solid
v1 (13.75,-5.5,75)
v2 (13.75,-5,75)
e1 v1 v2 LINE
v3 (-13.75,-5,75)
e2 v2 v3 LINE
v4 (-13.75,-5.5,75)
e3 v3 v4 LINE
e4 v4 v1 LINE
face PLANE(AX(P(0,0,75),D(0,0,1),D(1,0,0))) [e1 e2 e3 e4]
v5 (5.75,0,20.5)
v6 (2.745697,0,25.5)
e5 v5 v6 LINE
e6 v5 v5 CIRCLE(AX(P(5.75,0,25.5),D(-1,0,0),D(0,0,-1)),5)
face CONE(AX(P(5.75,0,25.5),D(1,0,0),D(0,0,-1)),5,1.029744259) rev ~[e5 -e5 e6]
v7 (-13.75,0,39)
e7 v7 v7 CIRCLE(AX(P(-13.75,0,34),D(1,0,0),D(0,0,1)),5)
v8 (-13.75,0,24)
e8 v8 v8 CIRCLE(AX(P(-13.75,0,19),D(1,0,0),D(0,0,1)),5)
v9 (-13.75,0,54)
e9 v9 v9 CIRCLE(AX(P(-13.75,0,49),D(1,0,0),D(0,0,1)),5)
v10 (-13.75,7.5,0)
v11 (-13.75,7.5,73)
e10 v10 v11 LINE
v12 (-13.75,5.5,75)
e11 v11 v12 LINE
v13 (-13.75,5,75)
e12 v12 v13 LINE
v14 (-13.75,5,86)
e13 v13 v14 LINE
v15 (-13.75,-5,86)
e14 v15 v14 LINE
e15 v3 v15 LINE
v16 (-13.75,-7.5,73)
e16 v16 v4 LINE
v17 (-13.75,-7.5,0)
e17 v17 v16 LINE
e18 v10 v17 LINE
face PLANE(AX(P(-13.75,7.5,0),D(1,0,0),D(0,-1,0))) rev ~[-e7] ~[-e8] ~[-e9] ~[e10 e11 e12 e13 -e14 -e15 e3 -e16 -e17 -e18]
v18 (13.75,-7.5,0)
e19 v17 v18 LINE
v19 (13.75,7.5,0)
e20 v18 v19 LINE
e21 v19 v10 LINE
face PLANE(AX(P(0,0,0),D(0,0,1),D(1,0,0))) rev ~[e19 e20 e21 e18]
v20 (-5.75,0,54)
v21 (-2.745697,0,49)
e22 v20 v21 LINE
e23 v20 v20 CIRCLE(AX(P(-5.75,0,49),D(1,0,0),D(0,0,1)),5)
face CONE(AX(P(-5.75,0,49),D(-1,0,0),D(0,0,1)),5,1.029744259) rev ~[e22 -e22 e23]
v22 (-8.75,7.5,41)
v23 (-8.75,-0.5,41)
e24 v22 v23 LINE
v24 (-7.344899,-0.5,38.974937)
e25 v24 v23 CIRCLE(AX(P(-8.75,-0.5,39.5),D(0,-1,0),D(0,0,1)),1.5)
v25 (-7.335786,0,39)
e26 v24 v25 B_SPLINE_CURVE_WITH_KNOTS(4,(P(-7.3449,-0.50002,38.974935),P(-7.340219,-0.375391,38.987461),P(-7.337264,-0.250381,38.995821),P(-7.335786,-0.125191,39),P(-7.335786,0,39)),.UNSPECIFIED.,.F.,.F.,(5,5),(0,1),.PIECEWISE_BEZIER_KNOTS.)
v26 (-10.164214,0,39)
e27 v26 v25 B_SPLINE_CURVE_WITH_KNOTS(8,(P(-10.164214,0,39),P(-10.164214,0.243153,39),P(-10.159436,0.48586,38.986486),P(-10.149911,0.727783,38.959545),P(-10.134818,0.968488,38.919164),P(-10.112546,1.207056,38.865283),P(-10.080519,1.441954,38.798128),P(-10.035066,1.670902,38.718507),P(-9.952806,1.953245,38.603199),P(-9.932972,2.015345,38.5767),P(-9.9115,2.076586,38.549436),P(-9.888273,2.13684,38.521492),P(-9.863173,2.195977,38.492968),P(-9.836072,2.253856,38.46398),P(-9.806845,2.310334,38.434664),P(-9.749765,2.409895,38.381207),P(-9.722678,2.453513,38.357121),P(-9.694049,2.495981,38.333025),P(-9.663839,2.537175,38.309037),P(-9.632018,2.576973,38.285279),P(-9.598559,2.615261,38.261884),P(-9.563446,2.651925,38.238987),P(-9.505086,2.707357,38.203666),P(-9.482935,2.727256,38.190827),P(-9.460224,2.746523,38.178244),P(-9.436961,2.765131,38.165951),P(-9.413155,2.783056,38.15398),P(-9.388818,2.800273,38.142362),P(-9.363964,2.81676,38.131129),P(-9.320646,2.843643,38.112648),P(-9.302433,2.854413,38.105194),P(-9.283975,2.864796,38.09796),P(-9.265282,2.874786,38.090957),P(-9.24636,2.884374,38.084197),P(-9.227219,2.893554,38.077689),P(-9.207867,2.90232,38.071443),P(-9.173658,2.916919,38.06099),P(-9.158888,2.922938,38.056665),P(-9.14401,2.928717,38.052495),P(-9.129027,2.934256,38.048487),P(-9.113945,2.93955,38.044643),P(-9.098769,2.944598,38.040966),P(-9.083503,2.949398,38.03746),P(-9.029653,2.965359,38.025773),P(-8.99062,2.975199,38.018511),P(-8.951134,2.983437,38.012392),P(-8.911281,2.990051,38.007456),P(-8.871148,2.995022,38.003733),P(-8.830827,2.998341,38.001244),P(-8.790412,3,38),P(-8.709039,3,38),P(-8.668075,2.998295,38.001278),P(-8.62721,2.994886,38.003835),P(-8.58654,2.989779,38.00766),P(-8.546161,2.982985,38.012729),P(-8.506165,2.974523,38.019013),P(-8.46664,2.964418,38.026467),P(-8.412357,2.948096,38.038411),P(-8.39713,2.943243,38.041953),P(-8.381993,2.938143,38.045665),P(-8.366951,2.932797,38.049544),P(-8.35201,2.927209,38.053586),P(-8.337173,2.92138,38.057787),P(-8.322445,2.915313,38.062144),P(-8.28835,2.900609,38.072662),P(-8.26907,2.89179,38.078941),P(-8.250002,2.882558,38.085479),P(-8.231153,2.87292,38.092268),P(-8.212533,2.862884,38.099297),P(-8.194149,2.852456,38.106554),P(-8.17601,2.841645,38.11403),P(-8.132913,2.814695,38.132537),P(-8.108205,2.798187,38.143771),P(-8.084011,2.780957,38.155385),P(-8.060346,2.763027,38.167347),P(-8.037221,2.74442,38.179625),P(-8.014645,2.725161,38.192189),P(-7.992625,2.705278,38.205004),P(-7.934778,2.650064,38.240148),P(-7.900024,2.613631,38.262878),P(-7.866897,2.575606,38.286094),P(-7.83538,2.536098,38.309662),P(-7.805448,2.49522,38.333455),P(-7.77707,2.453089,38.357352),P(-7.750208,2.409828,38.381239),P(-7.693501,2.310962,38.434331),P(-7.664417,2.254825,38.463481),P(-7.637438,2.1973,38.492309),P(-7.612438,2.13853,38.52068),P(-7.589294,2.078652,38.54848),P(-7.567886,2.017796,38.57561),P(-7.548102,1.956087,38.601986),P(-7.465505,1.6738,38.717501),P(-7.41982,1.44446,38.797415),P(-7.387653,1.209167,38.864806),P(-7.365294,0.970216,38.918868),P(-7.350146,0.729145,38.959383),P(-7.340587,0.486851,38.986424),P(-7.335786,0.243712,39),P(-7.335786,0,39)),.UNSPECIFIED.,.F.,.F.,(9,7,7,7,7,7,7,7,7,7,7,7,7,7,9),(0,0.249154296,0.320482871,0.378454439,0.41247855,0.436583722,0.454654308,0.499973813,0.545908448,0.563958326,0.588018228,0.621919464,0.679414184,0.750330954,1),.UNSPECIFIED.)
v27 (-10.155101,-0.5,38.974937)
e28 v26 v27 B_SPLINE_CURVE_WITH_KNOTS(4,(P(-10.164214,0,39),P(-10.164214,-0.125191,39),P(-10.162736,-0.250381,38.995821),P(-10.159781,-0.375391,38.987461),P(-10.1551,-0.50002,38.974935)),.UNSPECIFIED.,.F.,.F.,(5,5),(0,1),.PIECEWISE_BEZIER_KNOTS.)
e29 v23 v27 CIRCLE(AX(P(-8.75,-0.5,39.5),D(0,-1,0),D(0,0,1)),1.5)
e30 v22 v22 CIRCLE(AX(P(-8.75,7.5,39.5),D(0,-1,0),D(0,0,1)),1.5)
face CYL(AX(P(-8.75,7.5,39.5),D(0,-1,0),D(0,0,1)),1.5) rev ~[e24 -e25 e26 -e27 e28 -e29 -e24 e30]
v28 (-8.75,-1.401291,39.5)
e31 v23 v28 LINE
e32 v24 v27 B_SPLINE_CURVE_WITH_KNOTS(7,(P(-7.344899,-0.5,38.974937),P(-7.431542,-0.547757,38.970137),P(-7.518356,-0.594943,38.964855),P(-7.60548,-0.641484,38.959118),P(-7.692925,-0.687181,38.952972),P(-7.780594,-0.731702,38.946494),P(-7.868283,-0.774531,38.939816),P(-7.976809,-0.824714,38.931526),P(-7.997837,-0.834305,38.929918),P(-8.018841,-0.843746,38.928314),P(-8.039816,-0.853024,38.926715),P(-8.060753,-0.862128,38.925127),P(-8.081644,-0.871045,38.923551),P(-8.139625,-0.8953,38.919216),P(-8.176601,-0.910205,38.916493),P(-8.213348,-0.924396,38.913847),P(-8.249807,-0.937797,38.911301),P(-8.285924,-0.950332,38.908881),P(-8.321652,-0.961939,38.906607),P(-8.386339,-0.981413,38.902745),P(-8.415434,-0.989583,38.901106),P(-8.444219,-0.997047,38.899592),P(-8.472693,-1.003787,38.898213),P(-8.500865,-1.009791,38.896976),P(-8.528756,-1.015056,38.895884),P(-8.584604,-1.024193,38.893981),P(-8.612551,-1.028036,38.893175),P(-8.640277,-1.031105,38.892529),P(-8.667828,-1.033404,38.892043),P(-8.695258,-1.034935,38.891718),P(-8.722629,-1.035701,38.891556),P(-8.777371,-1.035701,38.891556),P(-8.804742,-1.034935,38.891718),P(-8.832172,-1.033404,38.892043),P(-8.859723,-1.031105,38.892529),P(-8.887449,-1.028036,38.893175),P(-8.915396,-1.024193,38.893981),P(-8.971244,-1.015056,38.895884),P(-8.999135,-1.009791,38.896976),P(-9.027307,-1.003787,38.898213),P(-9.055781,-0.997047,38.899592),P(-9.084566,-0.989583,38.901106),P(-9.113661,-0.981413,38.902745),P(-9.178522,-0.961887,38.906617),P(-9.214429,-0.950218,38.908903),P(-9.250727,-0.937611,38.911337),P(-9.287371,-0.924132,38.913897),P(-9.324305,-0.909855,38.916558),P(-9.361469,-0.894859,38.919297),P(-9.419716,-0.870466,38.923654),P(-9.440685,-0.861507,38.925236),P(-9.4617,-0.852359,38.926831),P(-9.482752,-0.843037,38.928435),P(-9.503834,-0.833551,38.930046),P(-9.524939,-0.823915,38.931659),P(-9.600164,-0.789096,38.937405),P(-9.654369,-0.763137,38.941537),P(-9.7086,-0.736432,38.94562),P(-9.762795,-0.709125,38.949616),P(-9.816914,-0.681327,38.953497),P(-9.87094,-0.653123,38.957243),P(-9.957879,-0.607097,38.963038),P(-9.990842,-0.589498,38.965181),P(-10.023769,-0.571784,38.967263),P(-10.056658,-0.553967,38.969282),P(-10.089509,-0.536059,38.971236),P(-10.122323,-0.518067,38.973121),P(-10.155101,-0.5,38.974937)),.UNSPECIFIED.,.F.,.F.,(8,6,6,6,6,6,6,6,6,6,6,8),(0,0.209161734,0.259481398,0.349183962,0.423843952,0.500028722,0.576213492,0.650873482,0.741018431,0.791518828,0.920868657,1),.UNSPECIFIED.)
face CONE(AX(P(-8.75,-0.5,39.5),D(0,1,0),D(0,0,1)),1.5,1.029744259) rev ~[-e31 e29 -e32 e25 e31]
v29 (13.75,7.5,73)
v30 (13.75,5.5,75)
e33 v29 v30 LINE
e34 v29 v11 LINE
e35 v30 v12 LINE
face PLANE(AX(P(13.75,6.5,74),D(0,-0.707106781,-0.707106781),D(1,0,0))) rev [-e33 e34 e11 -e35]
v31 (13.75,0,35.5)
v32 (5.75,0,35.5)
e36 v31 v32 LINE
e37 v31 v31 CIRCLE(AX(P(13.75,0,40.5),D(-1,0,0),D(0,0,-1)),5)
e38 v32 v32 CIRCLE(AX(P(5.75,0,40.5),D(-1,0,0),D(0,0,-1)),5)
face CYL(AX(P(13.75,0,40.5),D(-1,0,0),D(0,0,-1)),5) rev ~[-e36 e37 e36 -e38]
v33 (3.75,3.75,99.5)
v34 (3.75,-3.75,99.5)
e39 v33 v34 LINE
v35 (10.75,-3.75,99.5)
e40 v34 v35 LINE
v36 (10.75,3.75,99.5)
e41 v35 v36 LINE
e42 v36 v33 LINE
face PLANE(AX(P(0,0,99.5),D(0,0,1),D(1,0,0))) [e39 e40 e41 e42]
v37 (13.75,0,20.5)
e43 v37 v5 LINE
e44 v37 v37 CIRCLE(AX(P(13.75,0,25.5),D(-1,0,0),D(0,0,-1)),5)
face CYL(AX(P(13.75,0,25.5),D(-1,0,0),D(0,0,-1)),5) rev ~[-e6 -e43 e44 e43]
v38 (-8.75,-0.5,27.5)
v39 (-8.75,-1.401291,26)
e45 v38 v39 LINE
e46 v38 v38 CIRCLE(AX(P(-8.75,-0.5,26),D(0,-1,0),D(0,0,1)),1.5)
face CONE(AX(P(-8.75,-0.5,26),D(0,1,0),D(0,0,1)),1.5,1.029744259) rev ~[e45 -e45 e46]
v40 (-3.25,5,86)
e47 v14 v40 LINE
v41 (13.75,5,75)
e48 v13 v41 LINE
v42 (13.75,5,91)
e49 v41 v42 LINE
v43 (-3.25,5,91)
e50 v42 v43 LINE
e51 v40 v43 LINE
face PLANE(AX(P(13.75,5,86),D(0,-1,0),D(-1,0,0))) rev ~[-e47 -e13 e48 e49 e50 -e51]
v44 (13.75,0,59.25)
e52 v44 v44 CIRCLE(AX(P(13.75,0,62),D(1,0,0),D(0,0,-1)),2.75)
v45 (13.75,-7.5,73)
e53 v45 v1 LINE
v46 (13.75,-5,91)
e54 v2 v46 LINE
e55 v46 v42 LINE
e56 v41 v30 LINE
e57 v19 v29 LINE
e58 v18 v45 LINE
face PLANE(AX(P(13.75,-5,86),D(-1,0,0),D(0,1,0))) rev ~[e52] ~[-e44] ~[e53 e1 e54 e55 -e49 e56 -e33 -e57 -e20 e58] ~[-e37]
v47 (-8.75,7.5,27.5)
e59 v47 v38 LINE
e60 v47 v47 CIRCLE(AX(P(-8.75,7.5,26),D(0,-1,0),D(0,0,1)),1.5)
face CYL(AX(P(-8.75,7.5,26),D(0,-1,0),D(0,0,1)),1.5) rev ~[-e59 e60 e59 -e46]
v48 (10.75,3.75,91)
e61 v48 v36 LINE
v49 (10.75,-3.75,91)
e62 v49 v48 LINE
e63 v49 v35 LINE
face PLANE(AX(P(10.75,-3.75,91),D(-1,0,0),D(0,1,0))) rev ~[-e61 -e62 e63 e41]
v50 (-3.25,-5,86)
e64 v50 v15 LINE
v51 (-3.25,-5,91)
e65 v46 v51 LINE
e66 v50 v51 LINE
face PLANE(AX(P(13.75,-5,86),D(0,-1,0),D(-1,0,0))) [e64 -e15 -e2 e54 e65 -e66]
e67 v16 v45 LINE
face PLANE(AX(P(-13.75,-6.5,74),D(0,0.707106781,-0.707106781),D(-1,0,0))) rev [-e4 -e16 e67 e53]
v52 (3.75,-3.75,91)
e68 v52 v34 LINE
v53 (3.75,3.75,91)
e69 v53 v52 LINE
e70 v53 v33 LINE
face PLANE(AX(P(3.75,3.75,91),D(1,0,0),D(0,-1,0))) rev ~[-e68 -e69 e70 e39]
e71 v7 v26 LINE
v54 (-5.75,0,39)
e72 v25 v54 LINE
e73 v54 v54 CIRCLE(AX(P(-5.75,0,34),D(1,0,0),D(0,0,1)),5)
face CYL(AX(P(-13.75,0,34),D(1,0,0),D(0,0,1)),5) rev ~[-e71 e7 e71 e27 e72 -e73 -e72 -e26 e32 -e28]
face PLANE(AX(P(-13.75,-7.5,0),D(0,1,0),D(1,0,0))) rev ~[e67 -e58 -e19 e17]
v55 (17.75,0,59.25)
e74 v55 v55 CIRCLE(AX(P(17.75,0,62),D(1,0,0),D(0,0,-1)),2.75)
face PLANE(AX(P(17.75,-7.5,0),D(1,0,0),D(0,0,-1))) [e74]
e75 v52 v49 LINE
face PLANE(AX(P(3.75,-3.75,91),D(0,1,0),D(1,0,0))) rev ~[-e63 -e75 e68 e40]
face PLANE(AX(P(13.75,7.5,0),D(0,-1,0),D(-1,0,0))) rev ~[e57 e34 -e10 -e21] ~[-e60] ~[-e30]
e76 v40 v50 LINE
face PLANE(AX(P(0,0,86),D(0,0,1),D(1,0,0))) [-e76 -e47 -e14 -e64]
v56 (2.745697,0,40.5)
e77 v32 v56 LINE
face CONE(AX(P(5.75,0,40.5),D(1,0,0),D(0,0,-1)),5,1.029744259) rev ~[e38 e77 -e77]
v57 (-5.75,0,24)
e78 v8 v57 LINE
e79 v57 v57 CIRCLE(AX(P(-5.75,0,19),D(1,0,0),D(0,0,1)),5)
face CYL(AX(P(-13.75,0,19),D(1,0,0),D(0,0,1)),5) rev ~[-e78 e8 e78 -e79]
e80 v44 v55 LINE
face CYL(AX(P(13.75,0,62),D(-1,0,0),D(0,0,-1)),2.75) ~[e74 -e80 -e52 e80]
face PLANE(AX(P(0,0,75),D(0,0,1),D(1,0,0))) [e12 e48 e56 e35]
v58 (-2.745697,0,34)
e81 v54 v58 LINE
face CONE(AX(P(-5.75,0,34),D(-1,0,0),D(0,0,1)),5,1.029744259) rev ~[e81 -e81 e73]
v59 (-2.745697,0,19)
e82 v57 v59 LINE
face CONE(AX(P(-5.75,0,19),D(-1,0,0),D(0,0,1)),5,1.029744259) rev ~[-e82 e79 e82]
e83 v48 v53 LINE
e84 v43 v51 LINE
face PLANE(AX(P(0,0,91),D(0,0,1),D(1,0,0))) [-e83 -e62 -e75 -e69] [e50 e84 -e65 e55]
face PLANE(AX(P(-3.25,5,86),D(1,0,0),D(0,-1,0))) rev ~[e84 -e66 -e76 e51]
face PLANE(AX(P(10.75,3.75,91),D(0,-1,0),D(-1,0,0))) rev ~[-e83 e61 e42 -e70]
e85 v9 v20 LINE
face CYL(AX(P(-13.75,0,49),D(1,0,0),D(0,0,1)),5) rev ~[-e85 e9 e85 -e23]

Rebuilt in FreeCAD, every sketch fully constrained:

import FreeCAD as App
import Part
import Sketcher
from FreeCAD import Vector
Q = App.Units.Quantity


def edges_at(feature, points):
    """Names of the edges that pass closest to the given points."""
    edges = feature.Shape.Edges
    near = lambda p: min(range(len(edges)), key=lambda i: edges[i].distToShape(Part.Vertex(*p))[0])
    return sorted({f"Edge{near(p) + 1}" for p in points})

doc = App.newDocument("Part")
body = doc.addObject("PartDesign::Body", "Body")

sketch1 = doc.addObject("Sketcher::SketchObject", "Sketch")
body.addObject(sketch1)
sketch1.AttachmentSupport = (doc.XY_Plane, [""])
sketch1.MapMode = "FlatFace"
sketch1.addGeometry([
    Part.LineSegment(Vector(-14, 8, 0), Vector(-14, -8, 0)),
    Part.LineSegment(Vector(-14, -8, 0), Vector(14, -8, 0)),
    Part.LineSegment(Vector(14, -8, 0), Vector(14, 8, 0)),
    Part.LineSegment(Vector(14, 8, 0), Vector(-14, 8, 0)),
], False)
sketch1.addConstraint([
    Sketcher.Constraint("Coincident", 0, 2, 1, 1),
    Sketcher.Constraint("Coincident", 1, 2, 2, 1),
    Sketcher.Constraint("Coincident", 2, 2, 3, 1),
    Sketcher.Constraint("Coincident", 3, 2, 0, 1),
    Sketcher.Constraint("Vertical", 0),
    Sketcher.Constraint("Horizontal", 1),
    Sketcher.Constraint("Vertical", 2),
    Sketcher.Constraint("Horizontal", 3),
    Sketcher.Constraint("Symmetric", 0, 2, 2, 2, -1, 1),
    Sketcher.Constraint("DistanceY", 0, 2, 0, 1, Q("15 mm")),
    Sketcher.Constraint("DistanceX", 1, 1, 1, 2, Q("27.5 mm")),
])
pad1 = doc.addObject("PartDesign::Pad", "Pad")
body.addObject(pad1)
pad1.Profile = sketch1
pad1.Length = 75

sketch2 = doc.addObject("Sketcher::SketchObject", "Sketch001")
body.addObject(sketch2)
sketch2.AttachmentSupport = (doc.XY_Plane, [""])
sketch2.MapMode = "FlatFace"
sketch2.AttachmentOffset = App.Placement(Vector(0, 0, 75), App.Rotation())
sketch2.addGeometry([
    Part.LineSegment(Vector(14, 5, 0), Vector(-14, 5, 0)),
    Part.LineSegment(Vector(-14, 5, 0), Vector(-14, -5, 0)),
    Part.LineSegment(Vector(-14, -5, 0), Vector(14, -5, 0)),
    Part.LineSegment(Vector(14, -5, 0), Vector(14, 5, 0)),
], False)
sketch2.addConstraint([
    Sketcher.Constraint("Coincident", 0, 2, 1, 1),
    Sketcher.Constraint("Coincident", 1, 2, 2, 1),
    Sketcher.Constraint("Coincident", 2, 2, 3, 1),
    Sketcher.Constraint("Coincident", 3, 2, 0, 1),
    Sketcher.Constraint("Horizontal", 0),
    Sketcher.Constraint("Vertical", 1),
    Sketcher.Constraint("Horizontal", 2),
    Sketcher.Constraint("Vertical", 3),
    Sketcher.Constraint("Symmetric", 0, 2, 2, 2, -1, 1),
    Sketcher.Constraint("DistanceY", 1, 2, 1, 1, Q("10 mm")),
    Sketcher.Constraint("DistanceX", 0, 2, 0, 1, Q("27.5 mm")),
])
pad2 = doc.addObject("PartDesign::Pad", "Pad001")
body.addObject(pad2)
pad2.Profile = sketch2
pad2.Length = 11
doc.recompute()

chamfer = doc.addObject("PartDesign::Chamfer", "Chamfer")
body.addObject(chamfer)
chamfer.Base = (pad2, edges_at(pad2, [(0, 7.5, 75), (0, -7.5, 75)]))
chamfer.Size = 2

sketch3 = doc.addObject("Sketcher::SketchObject", "Sketch002")
body.addObject(sketch3)
sketch3.AttachmentSupport = (doc.XY_Plane, [""])
sketch3.MapMode = "FlatFace"
sketch3.AttachmentOffset = App.Placement(Vector(0, 0, 86), App.Rotation())
sketch3.addGeometry([
    Part.LineSegment(Vector(-3, -5, 0), Vector(14, -5, 0)),
    Part.LineSegment(Vector(14, -5, 0), Vector(14, 5, 0)),
    Part.LineSegment(Vector(14, 5, 0), Vector(-3, 5, 0)),
    Part.LineSegment(Vector(-3, 5, 0), Vector(-3, -5, 0)),
], False)
sketch3.addConstraint([
    Sketcher.Constraint("Coincident", 0, 2, 1, 1),
    Sketcher.Constraint("Coincident", 1, 2, 2, 1),
    Sketcher.Constraint("Coincident", 2, 2, 3, 1),
    Sketcher.Constraint("Coincident", 3, 2, 0, 1),
    Sketcher.Constraint("Horizontal", 0),
    Sketcher.Constraint("Vertical", 1),
    Sketcher.Constraint("Horizontal", 2),
    Sketcher.Constraint("Vertical", 3),
    Sketcher.Constraint("DistanceX", 0, 1, 0, 2, Q("17 mm")),
    Sketcher.Constraint("DistanceY", 1, 1, 1, 2, Q("10 mm")),
    Sketcher.Constraint("DistanceY", 0, 2, -1, 1, Q("5 mm")),
    Sketcher.Constraint("DistanceX", -1, 1, 0, 2, Q("13.75 mm")),
])
pad3 = doc.addObject("PartDesign::Pad", "Pad002")
body.addObject(pad3)
pad3.Profile = sketch3
pad3.Length = 5

sketch4 = doc.addObject("Sketcher::SketchObject", "Sketch003")
body.addObject(sketch4)
sketch4.AttachmentSupport = (doc.XY_Plane, [""])
sketch4.MapMode = "FlatFace"
sketch4.AttachmentOffset = App.Placement(Vector(0, 0, 91), App.Rotation())
sketch4.addGeometry([
    Part.LineSegment(Vector(4, 4, 0), Vector(4, -4, 0)),
    Part.LineSegment(Vector(4, -4, 0), Vector(11, -4, 0)),
    Part.LineSegment(Vector(11, -4, 0), Vector(11, 4, 0)),
    Part.LineSegment(Vector(11, 4, 0), Vector(4, 4, 0)),
], False)
sketch4.addConstraint([
    Sketcher.Constraint("Coincident", 0, 2, 1, 1),
    Sketcher.Constraint("Coincident", 1, 2, 2, 1),
    Sketcher.Constraint("Coincident", 2, 2, 3, 1),
    Sketcher.Constraint("Coincident", 3, 2, 0, 1),
    Sketcher.Constraint("Vertical", 0),
    Sketcher.Constraint("Horizontal", 1),
    Sketcher.Constraint("Vertical", 2),
    Sketcher.Constraint("Horizontal", 3),
    Sketcher.Constraint("DistanceX", 1, 1, 1, 2, Q("7 mm")),
    Sketcher.Constraint("DistanceY", 0, 2, 0, 1, Q("7.5 mm")),
    Sketcher.Constraint("DistanceX", -1, 1, 0, 2, Q("3.75 mm")),
    Sketcher.Constraint("DistanceY", 0, 2, -1, 1, Q("3.75 mm")),
])
pad4 = doc.addObject("PartDesign::Pad", "Pad003")
body.addObject(pad4)
pad4.Profile = sketch4
pad4.Length = 8.5

sketch5 = doc.addObject("Sketcher::SketchObject", "Sketch004")
body.addObject(sketch5)
sketch5.AttachmentSupport = (doc.YZ_Plane, [""])
sketch5.MapMode = "FlatFace"
sketch5.AttachmentOffset = App.Placement(Vector(0, 0, 13.75), App.Rotation())
sketch5.addGeometry([
    Part.Circle(Vector(0, 26, 0), Vector(0, 0, 1), 5),
    Part.Circle(Vector(0, 40, 0), Vector(0, 0, 1), 5),
], False)
sketch5.addConstraint([
    Sketcher.Constraint("Equal", 0, 1),
    Sketcher.Constraint("PointOnObject", 0, 3, -2),
    Sketcher.Constraint("PointOnObject", 1, 3, -2),
    Sketcher.Constraint("Diameter", 0, Q("10 mm")),
    Sketcher.Constraint("DistanceY", 0, 3, 1, 3, Q("15 mm")),
    Sketcher.Constraint("DistanceY", -1, 1, 0, 3, Q("25.5 mm")),
])
doc.recompute()
hole = doc.addObject("PartDesign::Hole", "Hole")
body.addObject(hole)
hole.Profile = sketch5
hole.ThreadType = "None"
hole.Diameter = 10
hole.DepthType = "Dimension"
hole.Depth = 8
hole.DrillPoint = "Angled"
hole.DrillPointAngle = 118

sketch6 = doc.addObject("Sketcher::SketchObject", "Sketch005")
body.addObject(sketch6)
sketch6.AttachmentSupport = (doc.YZ_Plane, [""])
sketch6.MapMode = "FlatFace"
sketch6.AttachmentOffset = App.Placement(Vector(0, 0, -13.75), App.Rotation())
sketch6.addGeometry([
    Part.Circle(Vector(0, 34, 0), Vector(0, 0, 1), 5),
    Part.Circle(Vector(0, 19, 0), Vector(0, 0, 1), 5),
    Part.Circle(Vector(0, 49, 0), Vector(0, 0, 1), 5),
], False)
sketch6.addConstraint([
    Sketcher.Constraint("Equal", 0, 1),
    Sketcher.Constraint("Equal", 1, 2),
    Sketcher.Constraint("PointOnObject", 0, 3, -2),
    Sketcher.Constraint("PointOnObject", 1, 3, -2),
    Sketcher.Constraint("PointOnObject", 2, 3, -2),
    Sketcher.Constraint("Diameter", 0, Q("10 mm")),
    Sketcher.Constraint("DistanceY", -1, 1, 0, 3, Q("34 mm")),
    Sketcher.Constraint("DistanceY", -1, 1, 1, 3, Q("19 mm")),
    Sketcher.Constraint("DistanceY", -1, 1, 2, 3, Q("49 mm")),
])
doc.recompute()
hole2 = doc.addObject("PartDesign::Hole", "Hole001")
body.addObject(hole2)
hole2.Profile = sketch6
hole2.ThreadType = "None"
hole2.Diameter = 10
hole2.DepthType = "Dimension"
hole2.Depth = 8
hole2.DrillPoint = "Angled"
hole2.DrillPointAngle = 118
hole2.Reversed = True

sketch7 = doc.addObject("Sketcher::SketchObject", "Sketch006")
body.addObject(sketch7)
sketch7.AttachmentSupport = (doc.XZ_Plane, [""])
sketch7.MapMode = "FlatFace"
sketch7.AttachmentOffset = App.Placement(Vector(0, 0, -7.5), App.Rotation())
sketch7.addGeometry([
    Part.Circle(Vector(-8.8, 26, 0), Vector(0, 0, 1), 1.5),
    Part.Circle(Vector(-8.8, 39.5, 0), Vector(0, 0, 1), 1.5),
], False)
sketch7.addConstraint([
    Sketcher.Constraint("Equal", 0, 1),
    Sketcher.Constraint("Vertical", 0, 3, 1, 3),
    Sketcher.Constraint("Diameter", 0, Q("3 mm")),
    Sketcher.Constraint("DistanceY", -1, 1, 0, 3, Q("26 mm")),
    Sketcher.Constraint("DistanceY", -1, 1, 1, 3, Q("39.5 mm")),
    Sketcher.Constraint("DistanceX", 0, 3, -1, 1, Q("8.75 mm")),
])
doc.recompute()
hole3 = doc.addObject("PartDesign::Hole", "Hole002")
body.addObject(hole3)
hole3.Profile = sketch7
hole3.ThreadType = "None"
hole3.Diameter = 3
hole3.DepthType = "Dimension"
hole3.Depth = 8
hole3.DrillPoint = "Angled"
hole3.DrillPointAngle = 118
hole3.Reversed = True

sketch8 = doc.addObject("Sketcher::SketchObject", "Sketch007")
body.addObject(sketch8)
sketch8.AttachmentSupport = (doc.YZ_Plane, [""])
sketch8.MapMode = "FlatFace"
sketch8.AttachmentOffset = App.Placement(Vector(0, 0, 13.75), App.Rotation())
sketch8.addGeometry(Part.Circle(Vector(0, 62, 0), Vector(0, 0, 1), 2.8), False)
sketch8.addConstraint([
    Sketcher.Constraint("PointOnObject", 0, 3, -2),
    Sketcher.Constraint("Diameter", 0, Q("5.5 mm")),
    Sketcher.Constraint("DistanceY", -1, 1, 0, 3, Q("62 mm")),
])
pad5 = doc.addObject("PartDesign::Pad", "Pad004")
body.addObject(pad5)
pad5.Profile = sketch8
pad5.Length = 4

doc.recompute()
